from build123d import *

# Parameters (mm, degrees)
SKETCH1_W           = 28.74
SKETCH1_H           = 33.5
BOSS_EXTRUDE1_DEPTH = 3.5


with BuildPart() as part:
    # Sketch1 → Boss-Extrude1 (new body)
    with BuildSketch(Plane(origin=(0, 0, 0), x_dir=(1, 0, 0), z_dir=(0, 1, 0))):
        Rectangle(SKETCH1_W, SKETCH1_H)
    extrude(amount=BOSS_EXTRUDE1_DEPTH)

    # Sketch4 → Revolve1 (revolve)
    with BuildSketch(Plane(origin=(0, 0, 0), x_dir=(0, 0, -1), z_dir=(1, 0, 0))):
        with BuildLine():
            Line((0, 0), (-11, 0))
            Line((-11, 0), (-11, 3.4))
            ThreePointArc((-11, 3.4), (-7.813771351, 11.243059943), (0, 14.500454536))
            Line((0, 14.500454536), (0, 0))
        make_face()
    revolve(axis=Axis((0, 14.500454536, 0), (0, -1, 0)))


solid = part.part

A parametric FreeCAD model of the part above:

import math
import FreeCAD as App
import Part
import Sketcher
from FreeCAD import Vector


def add_polygon(sketch, points):
    """Adds a closed chain of lines whose ends are joined by coincident constraints."""
    first, n = sketch.GeometryCount, len(points)
    for a, b in zip(points, points[1:] + points[:1]):
        sketch.addGeometry(Part.LineSegment(App.Vector(*a, 0), App.Vector(*b, 0)), False)
    for i in range(n):
        sketch.addConstraint(Sketcher.Constraint("Coincident", first + i, 2, first + (i + 1) % n, 1))

doc = App.newDocument("Part")
body = doc.addObject("PartDesign::Body", "Body")

sketch1 = body.newObject("Sketcher::SketchObject", "Sketch")
sketch1.AttachmentSupport = (doc.getObject("XZ_Plane"), [""])
sketch1.MapMode = "FlatFace"
add_polygon(sketch1, [(-14, -17), (-14, 17), (14, 17), (14, -17)])
sketch1.addConstraint([
    Sketcher.Constraint("Vertical", 0),
    Sketcher.Constraint("Horizontal", 1),
    Sketcher.Constraint("Vertical", 2),
    Sketcher.Constraint("Horizontal", 3),
    Sketcher.Constraint("Symmetric", 0, 2, 2, 2, -1, 1),
    Sketcher.Constraint("DistanceY", 0, 1, 0, 2, 33.5),
    Sketcher.Constraint("DistanceX", 1, 1, 1, 2, 28.74),
])
pad1 = body.newObject("PartDesign::Pad", "Pad")
pad1.Profile = sketch1
pad1.Length = 3.5
pad1.Reversed = True

sketch2 = body.newObject("Sketcher::SketchObject", "Sketch001")
sketch2.AttachmentSupport = (doc.getObject("YZ_Plane"), [""])
sketch2.MapMode = "FlatFace"
sketch2.addGeometry([
    Part.LineSegment(Vector(0, 11, 0), Vector(0, 0, 0)),
    Part.LineSegment(Vector(0, 0, 0), Vector(14.5, 0, 0)),
    Part.ArcOfCircle(Part.Circle(Vector(3.5, 0, 0), Vector(0, 0, 1), 11), math.radians(0), math.radians(91)),
    Part.LineSegment(Vector(3.4, 11, 0), Vector(0, 11, 0)),
], False)
sketch2.addConstraint([
    Sketcher.Constraint("Coincident", 0, 2, 1, 1),
    Sketcher.Constraint("Coincident", 1, 2, 2, 1),
    Sketcher.Constraint("Coincident", 2, 2, 3, 1),
    Sketcher.Constraint("Coincident", 3, 2, 0, 1),
    Sketcher.Constraint("Vertical", 0),
    Sketcher.Constraint("Horizontal", 1),
    Sketcher.Constraint("Horizontal", 3),
    Sketcher.Constraint("Coincident", 0, 2, -1, 1),
    Sketcher.Constraint("PointOnObject", 2, 3, -1),
    Sketcher.Constraint("DistanceY", 0, 2, 0, 1, 11.0),
    Sketcher.Constraint("DistanceX", 3, 2, 3, 1, 3.4),
    Sketcher.Constraint("DistanceX", -1, 1, 2, 3, 3.5),
])
revolution = body.newObject("PartDesign::Revolution", "Revolution")
revolution.Profile = sketch2
revolution.ReferenceAxis = (sketch2, ["H_Axis"])
revolution.Angle = 360

doc.recompute()
